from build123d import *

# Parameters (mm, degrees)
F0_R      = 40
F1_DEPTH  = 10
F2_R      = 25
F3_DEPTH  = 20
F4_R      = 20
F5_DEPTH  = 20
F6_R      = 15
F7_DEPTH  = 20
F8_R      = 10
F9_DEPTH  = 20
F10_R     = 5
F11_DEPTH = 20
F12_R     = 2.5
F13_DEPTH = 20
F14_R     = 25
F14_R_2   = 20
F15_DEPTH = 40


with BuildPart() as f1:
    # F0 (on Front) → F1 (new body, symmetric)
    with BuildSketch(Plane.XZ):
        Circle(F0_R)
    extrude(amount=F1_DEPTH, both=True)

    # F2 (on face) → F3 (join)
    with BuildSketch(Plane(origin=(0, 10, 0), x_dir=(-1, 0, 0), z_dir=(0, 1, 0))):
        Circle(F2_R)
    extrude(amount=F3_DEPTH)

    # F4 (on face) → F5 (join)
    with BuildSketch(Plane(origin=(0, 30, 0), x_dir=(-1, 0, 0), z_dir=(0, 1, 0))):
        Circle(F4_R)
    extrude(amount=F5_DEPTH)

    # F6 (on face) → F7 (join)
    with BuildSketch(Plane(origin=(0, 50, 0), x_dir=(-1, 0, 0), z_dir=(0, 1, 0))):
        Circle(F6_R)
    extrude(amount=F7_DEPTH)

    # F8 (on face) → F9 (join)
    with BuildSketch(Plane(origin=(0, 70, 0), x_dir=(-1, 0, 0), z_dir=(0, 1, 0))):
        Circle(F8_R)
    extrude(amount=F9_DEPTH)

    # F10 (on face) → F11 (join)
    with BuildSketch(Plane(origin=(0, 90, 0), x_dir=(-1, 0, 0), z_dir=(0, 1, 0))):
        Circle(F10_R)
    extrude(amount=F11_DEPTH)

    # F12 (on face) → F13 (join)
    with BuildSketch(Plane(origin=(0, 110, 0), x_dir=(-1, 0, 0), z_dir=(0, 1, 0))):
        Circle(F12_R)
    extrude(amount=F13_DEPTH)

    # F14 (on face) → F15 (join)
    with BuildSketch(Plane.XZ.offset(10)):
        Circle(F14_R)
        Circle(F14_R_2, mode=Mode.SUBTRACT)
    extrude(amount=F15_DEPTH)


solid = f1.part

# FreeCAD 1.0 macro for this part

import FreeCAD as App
import Part
import Sketcher
Q = App.Units.Quantity

doc = App.newDocument("Part")
body = doc.addObject("PartDesign::Body", "Body")

# Sketch on XZ plane
sketch1 = body.newObject("Sketcher::SketchObject", "Sketch")
sketch1.AttachmentSupport = (doc.getObject("XZ_Plane"), [""])
sketch1.MapMode = "FlatFace"
sketch1.addGeometry(Part.Circle(App.Vector(0, 0, 0), App.Vector(0, 0, 1), 40), False)
sketch1.addConstraint([
    Sketcher.Constraint("Coincident", 0, 3, -1, 1),
    Sketcher.Constraint("Diameter", 0, Q("80 mm")),
])
pad1 = body.newObject("PartDesign::Pad", "Pad")
pad1.Profile = sketch1
pad1.Length = 20
pad1.Midplane = True

# Sketch on XZ plane
sketch2 = body.newObject("Sketcher::SketchObject", "Sketch001")
sketch2.AttachmentSupport = (doc.getObject("XZ_Plane"), [""])
sketch2.MapMode = "FlatFace"
sketch2.AttachmentOffset = App.Placement(App.Vector(0, 0, -10), App.Rotation())
sketch2.addGeometry(Part.Circle(App.Vector(0, 0, 0), App.Vector(0, 0, 1), 25), False)
sketch2.addConstraint([
    Sketcher.Constraint("Coincident", 0, 3, -1, 1),
    Sketcher.Constraint("Diameter", 0, Q("50 mm")),
])
pad2 = body.newObject("PartDesign::Pad", "Pad001")
pad2.Profile = sketch2
pad2.Length = 20
pad2.Reversed = True

# Sketch on XZ plane
sketch3 = body.newObject("Sketcher::SketchObject", "Sketch002")
sketch3.AttachmentSupport = (doc.getObject("XZ_Plane"), [""])
sketch3.MapMode = "FlatFace"
sketch3.AttachmentOffset = App.Placement(App.Vector(0, 0, -30), App.Rotation())
sketch3.addGeometry(Part.Circle(App.Vector(0, 0, 0), App.Vector(0, 0, 1), 20), False)
sketch3.addConstraint([
    Sketcher.Constraint("Coincident", 0, 3, -1, 1),
    Sketcher.Constraint("Diameter", 0, Q("40 mm")),
])
pad3 = body.newObject("PartDesign::Pad", "Pad002")
pad3.Profile = sketch3
pad3.Length = 20
pad3.Reversed = True

# Sketch on XZ plane
sketch4 = body.newObject("Sketcher::SketchObject", "Sketch003")
sketch4.AttachmentSupport = (doc.getObject("XZ_Plane"), [""])
sketch4.MapMode = "FlatFace"
sketch4.AttachmentOffset = App.Placement(App.Vector(0, 0, -50), App.Rotation())
sketch4.addGeometry(Part.Circle(App.Vector(0, 0, 0), App.Vector(0, 0, 1), 15), False)
sketch4.addConstraint([
    Sketcher.Constraint("Coincident", 0, 3, -1, 1),
    Sketcher.Constraint("Diameter", 0, Q("30 mm")),
])
pad4 = body.newObject("PartDesign::Pad", "Pad003")
pad4.Profile = sketch4
pad4.Length = 20
pad4.Reversed = True

# Sketch on XZ plane
sketch5 = body.newObject("Sketcher::SketchObject", "Sketch004")
sketch5.AttachmentSupport = (doc.getObject("XZ_Plane"), [""])
sketch5.MapMode = "FlatFace"
sketch5.AttachmentOffset = App.Placement(App.Vector(0, 0, -70), App.Rotation())
sketch5.addGeometry(Part.Circle(App.Vector(0, 0, 0), App.Vector(0, 0, 1), 10), False)
sketch5.addConstraint([
    Sketcher.Constraint("Coincident", 0, 3, -1, 1),
    Sketcher.Constraint("Diameter", 0, Q("20 mm")),
])
pad5 = body.newObject("PartDesign::Pad", "Pad004")
pad5.Profile = sketch5
pad5.Length = 20
pad5.Reversed = True

# Sketch on XZ plane
sketch6 = body.newObject("Sketcher::SketchObject", "Sketch005")
sketch6.AttachmentSupport = (doc.getObject("XZ_Plane"), [""])
sketch6.MapMode = "FlatFace"
sketch6.AttachmentOffset = App.Placement(App.Vector(0, 0, -90), App.Rotation())
sketch6.addGeometry(Part.Circle(App.Vector(0, 0, 0), App.Vector(0, 0, 1), 5), False)
sketch6.addConstraint([
    Sketcher.Constraint("Coincident", 0, 3, -1, 1),
    Sketcher.Constraint("Diameter", 0, Q("10 mm")),
])
pad6 = body.newObject("PartDesign::Pad", "Pad005")
pad6.Profile = sketch6
pad6.Length = 20
pad6.Reversed = True

# Sketch on XZ plane
sketch7 = body.newObject("Sketcher::SketchObject", "Sketch006")
sketch7.AttachmentSupport = (doc.getObject("XZ_Plane"), [""])
sketch7.MapMode = "FlatFace"
sketch7.AttachmentOffset = App.Placement(App.Vector(0, 0, -110), App.Rotation())
sketch7.addGeometry(Part.Circle(App.Vector(0, 0, 0), App.Vector(0, 0, 1), 2.5), False)
sketch7.addConstraint([
    Sketcher.Constraint("Coincident", 0, 3, -1, 1),
    Sketcher.Constraint("Diameter", 0, Q("5 mm")),
])
pad7 = body.newObject("PartDesign::Pad", "Pad006")
pad7.Profile = sketch7
pad7.Length = 20
pad7.Reversed = True

# Sketch on XZ plane
sketch8 = body.newObject("Sketcher::SketchObject", "Sketch007")
sketch8.AttachmentSupport = (doc.getObject("XZ_Plane"), [""])
sketch8.MapMode = "FlatFace"
sketch8.AttachmentOffset = App.Placement(App.Vector(0, 0, 10), App.Rotation())
sketch8.addGeometry([
    Part.Circle(App.Vector(0, 0, 0), App.Vector(0, 0, 1), 25),
    Part.Circle(App.Vector(0, 0, 0), App.Vector(0, 0, 1), 20),
], False)
sketch8.addConstraint([
    Sketcher.Constraint("Coincident", 0, 3, -1, 1),
    Sketcher.Constraint("Coincident", 1, 3, -1, 1),
    Sketcher.Constraint("Diameter", 0, Q("50 mm")),
    Sketcher.Constraint("Diameter", 1, Q("40 mm")),
])
pad8 = body.newObject("PartDesign::Pad", "Pad007")
pad8.Profile = sketch8
pad8.Length = 40

doc.recompute()
